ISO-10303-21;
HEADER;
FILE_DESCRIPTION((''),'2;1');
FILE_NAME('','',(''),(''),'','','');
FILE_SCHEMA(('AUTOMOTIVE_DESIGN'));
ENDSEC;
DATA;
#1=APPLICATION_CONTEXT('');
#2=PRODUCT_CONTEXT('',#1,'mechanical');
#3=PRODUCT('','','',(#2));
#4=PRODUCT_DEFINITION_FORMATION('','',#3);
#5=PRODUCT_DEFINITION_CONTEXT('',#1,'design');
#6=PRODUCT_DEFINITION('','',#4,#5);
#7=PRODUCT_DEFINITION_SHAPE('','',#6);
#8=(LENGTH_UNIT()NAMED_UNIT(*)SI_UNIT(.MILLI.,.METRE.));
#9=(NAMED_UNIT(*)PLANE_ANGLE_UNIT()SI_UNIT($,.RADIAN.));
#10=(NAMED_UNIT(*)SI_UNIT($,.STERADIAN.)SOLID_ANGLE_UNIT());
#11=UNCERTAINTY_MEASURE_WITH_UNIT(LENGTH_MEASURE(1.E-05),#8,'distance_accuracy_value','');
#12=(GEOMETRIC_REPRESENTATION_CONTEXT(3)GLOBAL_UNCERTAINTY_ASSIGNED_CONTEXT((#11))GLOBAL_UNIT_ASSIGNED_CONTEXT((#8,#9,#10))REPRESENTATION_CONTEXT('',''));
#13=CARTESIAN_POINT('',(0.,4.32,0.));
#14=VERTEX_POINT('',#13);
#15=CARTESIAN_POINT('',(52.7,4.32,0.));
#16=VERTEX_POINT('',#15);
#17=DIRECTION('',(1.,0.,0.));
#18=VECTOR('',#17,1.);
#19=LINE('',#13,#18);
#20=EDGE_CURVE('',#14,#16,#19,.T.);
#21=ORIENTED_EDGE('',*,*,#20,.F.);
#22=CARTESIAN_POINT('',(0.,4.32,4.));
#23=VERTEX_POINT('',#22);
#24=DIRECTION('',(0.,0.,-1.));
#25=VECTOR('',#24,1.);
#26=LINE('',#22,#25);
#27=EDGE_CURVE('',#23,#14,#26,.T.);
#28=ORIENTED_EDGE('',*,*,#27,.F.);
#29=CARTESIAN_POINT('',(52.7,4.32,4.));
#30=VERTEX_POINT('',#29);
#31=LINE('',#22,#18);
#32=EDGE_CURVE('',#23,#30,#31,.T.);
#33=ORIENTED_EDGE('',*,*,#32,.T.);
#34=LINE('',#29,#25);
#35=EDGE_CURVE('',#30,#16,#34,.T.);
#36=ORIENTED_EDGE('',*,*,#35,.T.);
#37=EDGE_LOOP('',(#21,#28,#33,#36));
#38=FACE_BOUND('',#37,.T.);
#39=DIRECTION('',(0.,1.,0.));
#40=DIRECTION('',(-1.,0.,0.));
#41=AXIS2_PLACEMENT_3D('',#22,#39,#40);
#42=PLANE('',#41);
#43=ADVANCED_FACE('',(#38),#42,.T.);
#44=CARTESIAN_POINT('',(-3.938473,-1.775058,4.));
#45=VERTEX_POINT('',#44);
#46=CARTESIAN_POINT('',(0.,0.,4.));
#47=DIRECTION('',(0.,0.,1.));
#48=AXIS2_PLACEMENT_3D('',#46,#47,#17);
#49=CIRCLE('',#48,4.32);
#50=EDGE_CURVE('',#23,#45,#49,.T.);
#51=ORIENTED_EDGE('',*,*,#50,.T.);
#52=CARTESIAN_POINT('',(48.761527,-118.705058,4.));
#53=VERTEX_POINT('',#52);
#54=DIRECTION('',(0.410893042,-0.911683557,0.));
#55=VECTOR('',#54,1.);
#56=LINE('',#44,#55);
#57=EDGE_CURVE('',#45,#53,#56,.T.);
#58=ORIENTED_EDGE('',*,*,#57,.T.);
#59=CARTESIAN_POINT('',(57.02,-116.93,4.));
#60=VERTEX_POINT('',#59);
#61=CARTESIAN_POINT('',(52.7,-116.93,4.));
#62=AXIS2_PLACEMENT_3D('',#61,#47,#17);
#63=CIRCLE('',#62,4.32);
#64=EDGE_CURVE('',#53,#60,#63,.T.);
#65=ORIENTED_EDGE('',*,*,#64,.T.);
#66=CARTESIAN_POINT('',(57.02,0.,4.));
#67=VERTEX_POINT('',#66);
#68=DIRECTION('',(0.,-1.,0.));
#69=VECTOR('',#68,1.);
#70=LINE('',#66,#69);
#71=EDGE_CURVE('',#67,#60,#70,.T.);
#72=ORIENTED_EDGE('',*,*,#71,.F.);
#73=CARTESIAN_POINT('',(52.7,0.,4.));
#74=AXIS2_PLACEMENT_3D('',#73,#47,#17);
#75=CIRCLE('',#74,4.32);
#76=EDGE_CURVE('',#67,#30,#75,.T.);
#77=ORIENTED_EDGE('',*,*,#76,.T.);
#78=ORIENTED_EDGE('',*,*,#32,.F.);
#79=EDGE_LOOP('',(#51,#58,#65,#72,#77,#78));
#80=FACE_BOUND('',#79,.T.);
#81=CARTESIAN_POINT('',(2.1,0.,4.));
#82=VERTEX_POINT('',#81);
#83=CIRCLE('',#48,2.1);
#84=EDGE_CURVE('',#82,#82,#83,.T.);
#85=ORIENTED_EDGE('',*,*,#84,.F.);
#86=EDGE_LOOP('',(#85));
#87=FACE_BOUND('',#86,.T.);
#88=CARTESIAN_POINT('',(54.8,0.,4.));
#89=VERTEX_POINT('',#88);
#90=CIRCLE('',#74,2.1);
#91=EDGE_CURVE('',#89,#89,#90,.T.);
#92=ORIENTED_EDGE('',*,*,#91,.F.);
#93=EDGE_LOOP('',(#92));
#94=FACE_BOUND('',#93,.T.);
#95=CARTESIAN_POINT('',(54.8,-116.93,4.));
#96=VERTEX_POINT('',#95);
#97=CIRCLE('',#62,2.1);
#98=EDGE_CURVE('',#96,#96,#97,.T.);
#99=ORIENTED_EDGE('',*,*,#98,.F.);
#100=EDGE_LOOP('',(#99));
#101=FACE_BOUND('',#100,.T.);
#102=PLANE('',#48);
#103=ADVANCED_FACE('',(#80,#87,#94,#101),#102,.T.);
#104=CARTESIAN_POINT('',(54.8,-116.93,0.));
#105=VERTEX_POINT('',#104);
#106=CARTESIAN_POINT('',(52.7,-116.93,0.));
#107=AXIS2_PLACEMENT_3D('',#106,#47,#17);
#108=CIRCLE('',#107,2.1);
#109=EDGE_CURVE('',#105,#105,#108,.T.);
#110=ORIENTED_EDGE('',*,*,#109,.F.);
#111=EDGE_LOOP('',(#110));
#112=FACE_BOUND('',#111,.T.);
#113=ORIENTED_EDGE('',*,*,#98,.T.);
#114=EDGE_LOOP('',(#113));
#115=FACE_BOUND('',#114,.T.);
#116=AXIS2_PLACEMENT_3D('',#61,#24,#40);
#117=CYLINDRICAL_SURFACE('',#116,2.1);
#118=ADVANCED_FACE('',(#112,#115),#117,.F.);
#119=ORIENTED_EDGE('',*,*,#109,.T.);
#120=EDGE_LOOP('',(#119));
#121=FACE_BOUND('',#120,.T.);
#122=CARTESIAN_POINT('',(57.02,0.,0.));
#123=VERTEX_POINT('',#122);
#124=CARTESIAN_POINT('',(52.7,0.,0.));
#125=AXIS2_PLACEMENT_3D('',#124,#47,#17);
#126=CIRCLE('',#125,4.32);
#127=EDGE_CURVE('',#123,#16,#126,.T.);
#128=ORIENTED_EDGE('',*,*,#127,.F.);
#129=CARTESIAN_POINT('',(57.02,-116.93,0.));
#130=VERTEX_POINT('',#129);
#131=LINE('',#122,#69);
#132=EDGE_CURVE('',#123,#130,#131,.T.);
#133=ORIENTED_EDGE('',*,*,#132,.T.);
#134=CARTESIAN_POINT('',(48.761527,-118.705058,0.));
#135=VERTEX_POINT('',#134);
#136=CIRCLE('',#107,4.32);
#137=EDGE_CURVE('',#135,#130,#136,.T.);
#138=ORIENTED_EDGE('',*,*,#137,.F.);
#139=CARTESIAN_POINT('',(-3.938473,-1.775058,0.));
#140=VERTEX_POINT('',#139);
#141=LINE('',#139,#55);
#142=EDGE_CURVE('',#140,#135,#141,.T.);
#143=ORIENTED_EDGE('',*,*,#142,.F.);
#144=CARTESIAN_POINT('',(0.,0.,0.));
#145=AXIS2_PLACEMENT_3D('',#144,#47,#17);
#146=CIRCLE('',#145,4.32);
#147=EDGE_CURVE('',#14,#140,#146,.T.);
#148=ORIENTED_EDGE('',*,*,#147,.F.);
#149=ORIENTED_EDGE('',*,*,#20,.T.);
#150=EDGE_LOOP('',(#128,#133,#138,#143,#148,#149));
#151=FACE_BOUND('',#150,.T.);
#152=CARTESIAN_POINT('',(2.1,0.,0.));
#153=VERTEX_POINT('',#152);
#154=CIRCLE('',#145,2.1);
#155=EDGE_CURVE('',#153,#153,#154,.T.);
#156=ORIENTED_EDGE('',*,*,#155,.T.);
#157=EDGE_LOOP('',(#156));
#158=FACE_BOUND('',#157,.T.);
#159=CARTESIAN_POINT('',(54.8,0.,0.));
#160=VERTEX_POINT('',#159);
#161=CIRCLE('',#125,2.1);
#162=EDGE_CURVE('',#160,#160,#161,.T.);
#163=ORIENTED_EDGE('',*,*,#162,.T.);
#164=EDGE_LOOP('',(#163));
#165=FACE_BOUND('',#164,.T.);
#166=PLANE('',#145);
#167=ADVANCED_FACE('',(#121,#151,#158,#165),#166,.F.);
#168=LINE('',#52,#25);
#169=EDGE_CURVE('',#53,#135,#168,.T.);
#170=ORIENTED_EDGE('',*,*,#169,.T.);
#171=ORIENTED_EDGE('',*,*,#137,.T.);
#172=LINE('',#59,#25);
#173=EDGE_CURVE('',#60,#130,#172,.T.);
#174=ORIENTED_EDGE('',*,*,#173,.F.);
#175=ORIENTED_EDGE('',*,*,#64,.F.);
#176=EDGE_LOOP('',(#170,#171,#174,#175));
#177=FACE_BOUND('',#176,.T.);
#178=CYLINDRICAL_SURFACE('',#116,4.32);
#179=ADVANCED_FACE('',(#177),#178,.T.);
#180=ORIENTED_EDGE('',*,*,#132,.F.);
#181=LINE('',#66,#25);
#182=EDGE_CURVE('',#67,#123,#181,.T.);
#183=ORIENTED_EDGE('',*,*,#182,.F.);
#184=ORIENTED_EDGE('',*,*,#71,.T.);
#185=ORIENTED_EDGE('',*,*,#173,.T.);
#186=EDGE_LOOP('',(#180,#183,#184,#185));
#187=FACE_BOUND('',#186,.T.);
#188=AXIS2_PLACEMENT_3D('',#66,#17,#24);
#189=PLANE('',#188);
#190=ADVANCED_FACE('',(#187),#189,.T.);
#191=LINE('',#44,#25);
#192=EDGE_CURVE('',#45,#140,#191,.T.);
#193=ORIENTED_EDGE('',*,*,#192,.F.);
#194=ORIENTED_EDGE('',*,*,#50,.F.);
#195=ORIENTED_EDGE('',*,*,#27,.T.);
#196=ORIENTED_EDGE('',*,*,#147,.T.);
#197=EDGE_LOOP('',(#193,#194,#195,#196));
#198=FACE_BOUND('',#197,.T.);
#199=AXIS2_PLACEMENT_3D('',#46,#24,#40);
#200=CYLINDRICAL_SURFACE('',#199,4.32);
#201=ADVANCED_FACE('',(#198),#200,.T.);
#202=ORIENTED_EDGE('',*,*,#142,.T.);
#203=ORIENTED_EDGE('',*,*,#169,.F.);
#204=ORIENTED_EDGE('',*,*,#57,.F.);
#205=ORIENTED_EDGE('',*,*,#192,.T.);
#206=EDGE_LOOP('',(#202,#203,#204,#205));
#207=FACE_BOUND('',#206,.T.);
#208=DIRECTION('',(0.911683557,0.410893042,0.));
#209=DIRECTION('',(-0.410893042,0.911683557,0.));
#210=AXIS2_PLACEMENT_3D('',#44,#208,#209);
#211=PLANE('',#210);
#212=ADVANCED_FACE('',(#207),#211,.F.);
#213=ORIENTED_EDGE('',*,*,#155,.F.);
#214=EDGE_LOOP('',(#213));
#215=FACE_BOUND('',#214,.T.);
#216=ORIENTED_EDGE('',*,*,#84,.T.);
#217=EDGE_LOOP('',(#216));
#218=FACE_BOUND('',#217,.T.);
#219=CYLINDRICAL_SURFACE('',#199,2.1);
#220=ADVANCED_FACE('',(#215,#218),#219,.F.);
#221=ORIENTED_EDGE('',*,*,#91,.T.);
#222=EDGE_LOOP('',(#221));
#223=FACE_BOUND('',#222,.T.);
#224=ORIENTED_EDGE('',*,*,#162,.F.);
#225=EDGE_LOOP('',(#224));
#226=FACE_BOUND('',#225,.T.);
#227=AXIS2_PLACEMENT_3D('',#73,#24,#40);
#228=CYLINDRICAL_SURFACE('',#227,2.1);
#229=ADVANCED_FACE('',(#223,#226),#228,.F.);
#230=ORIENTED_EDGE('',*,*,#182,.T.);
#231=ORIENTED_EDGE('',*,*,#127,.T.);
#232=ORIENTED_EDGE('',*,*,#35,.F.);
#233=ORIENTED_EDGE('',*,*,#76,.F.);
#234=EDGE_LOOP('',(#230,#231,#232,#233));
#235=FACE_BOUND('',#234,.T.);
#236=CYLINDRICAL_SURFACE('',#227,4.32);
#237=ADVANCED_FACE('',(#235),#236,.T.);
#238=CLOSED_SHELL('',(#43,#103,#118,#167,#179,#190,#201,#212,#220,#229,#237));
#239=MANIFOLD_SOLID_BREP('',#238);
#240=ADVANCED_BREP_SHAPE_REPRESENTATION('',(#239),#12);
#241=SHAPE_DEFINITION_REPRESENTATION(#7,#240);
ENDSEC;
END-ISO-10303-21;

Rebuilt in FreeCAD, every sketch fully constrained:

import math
import FreeCAD as App
import Part
import Sketcher

doc = App.newDocument("Part")
body = doc.addObject("PartDesign::Body", "Body")

sketch1 = doc.addObject("Sketcher::SketchObject", "Sketch")
body.addObject(sketch1)
sketch1.AttachmentSupport = (doc.XY_Plane, [""])
sketch1.MapMode = "FlatFace"
sketch1.addGeometry(Part.LineSegment(App.Vector(52.7, 4.3, 0), App.Vector(0, 4.3, 0)), False)
sketch1.addGeometry(Part.ArcOfCircle(Part.Circle(App.Vector(0, 0, 0), App.Vector(0, 0, 1), 4.3), math.radians(90), math.radians(204)), False)
sketch1.addGeometry(Part.LineSegment(App.Vector(-3.9, -1.8, 0), App.Vector(48.8, -118.7, 0)), False)
sketch1.addGeometry(Part.ArcOfCircle(Part.Circle(App.Vector(52.7, -116.9, 0), App.Vector(0, 0, 1), 4.3), math.radians(-156), math.radians(0)), False)
sketch1.addGeometry(Part.LineSegment(App.Vector(57, -116.9, 0), App.Vector(57, 0, 0)), False)
sketch1.addGeometry(Part.ArcOfCircle(Part.Circle(App.Vector(52.7, 0, 0), App.Vector(0, 0, 1), 4.3), math.radians(0), math.radians(90)), False)
sketch1.addGeometry(Part.Circle(App.Vector(52.7, -116.9, 0), App.Vector(0, 0, 1), 2.1), False)
sketch1.addGeometry(Part.Circle(App.Vector(0, 0, 0), App.Vector(0, 0, 1), 2.1), False)
sketch1.addGeometry(Part.Circle(App.Vector(52.7, 0, 0), App.Vector(0, 0, 1), 2.1), False)
sketch1.addConstraint(Sketcher.Constraint("Tangent", 0, 2, 1, 1))
sketch1.addConstraint(Sketcher.Constraint("Tangent", 1, 2, 2, 1))
sketch1.addConstraint(Sketcher.Constraint("Tangent", 2, 2, 3, 1))
sketch1.addConstraint(Sketcher.Constraint("Tangent", 3, 2, 4, 1))
sketch1.addConstraint(Sketcher.Constraint("Tangent", 4, 2, 5, 1))
sketch1.addConstraint(Sketcher.Constraint("Tangent", 5, 2, 0, 1))
sketch1.addConstraint(Sketcher.Constraint("Horizontal", 0))
sketch1.addConstraint(Sketcher.Constraint("Vertical", 4))
sketch1.addConstraint(Sketcher.Constraint("Coincident", 1, 3, -1, 1))
sketch1.addConstraint(Sketcher.Constraint("Coincident", 7, 3, -1, 1))
sketch1.addConstraint(Sketcher.Constraint("Coincident", 6, 3, 3, 3))
sketch1.addConstraint(Sketcher.Constraint("Coincident", 8, 3, 5, 3))
sketch1.addConstraint(Sketcher.Constraint("Equal", 1, 3))
sketch1.addConstraint(Sketcher.Constraint("Equal", 3, 5))
sketch1.addConstraint(Sketcher.Constraint("Equal", 6, 7))
sketch1.addConstraint(Sketcher.Constraint("Equal", 7, 8))
sketch1.addConstraint(Sketcher.Constraint("Diameter", 6, 4.2))
sketch1.addConstraint(Sketcher.Constraint("Radius", 1, 4.32))
sketch1.addConstraint(Sketcher.Constraint("DistanceX", 0, 2, 0, 1, 52.7))
sketch1.addConstraint(Sketcher.Constraint("DistanceY", 4, 1, 4, 2, 116.93))
pad1 = doc.addObject("PartDesign::Pad", "Pad")
body.addObject(pad1)
pad1.Profile = sketch1
pad1.Length = 4

doc.recompute()
